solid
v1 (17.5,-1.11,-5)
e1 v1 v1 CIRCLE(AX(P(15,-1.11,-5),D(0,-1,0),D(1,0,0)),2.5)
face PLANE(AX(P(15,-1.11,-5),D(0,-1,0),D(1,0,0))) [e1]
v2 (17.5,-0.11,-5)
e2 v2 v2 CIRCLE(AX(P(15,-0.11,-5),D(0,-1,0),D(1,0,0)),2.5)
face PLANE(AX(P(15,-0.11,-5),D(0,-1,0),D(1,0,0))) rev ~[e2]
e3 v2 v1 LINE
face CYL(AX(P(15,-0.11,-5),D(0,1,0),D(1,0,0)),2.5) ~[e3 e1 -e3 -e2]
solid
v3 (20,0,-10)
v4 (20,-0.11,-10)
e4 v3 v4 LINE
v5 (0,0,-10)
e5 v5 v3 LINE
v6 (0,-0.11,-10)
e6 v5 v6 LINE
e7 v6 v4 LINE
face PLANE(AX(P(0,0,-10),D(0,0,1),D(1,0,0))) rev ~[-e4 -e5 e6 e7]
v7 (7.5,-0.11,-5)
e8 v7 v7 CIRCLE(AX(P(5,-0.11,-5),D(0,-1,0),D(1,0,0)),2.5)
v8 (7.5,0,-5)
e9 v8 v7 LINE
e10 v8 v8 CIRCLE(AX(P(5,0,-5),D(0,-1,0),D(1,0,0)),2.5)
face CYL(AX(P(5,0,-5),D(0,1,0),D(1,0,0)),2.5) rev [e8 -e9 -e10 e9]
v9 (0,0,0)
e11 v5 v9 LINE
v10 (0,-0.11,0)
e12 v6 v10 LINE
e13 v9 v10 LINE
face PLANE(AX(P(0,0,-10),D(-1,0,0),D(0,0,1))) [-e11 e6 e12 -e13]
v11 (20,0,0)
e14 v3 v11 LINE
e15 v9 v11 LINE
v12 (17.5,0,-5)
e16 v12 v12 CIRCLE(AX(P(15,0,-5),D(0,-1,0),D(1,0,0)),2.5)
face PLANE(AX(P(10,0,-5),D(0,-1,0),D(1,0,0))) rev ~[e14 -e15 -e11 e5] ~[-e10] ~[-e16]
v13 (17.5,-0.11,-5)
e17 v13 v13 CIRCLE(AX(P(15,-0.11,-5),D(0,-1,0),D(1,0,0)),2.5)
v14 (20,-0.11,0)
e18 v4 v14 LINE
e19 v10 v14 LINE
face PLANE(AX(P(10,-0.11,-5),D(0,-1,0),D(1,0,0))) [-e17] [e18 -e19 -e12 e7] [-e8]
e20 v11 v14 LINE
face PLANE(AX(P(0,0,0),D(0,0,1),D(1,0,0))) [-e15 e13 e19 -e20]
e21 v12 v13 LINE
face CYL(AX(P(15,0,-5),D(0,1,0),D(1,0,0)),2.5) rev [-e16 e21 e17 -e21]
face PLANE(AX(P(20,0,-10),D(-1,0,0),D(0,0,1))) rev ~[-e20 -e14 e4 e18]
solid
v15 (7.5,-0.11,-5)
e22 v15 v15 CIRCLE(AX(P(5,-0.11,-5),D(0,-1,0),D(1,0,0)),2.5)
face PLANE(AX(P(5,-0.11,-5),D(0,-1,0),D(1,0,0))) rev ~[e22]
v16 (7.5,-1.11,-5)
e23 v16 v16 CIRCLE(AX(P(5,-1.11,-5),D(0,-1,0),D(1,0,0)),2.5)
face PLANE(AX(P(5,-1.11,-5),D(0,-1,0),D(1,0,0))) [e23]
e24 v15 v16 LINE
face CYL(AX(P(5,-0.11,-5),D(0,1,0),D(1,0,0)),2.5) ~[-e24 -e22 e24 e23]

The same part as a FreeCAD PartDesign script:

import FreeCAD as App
import Part
import Sketcher
Q = App.Units.Quantity

doc = App.newDocument("Part")
body = doc.addObject("PartDesign::Body", "Body")

sketch1 = body.newObject("Sketcher::SketchObject", "Sketch")
sketch1.AttachmentSupport = (doc.getObject("XZ_Plane"), [""])
sketch1.MapMode = "FlatFace"
sketch1.addGeometry([
    Part.LineSegment(App.Vector(0, 0, 0), App.Vector(0, -10, 0)),
    Part.LineSegment(App.Vector(0, -10, 0), App.Vector(20, -10, 0)),
    Part.LineSegment(App.Vector(20, -10, 0), App.Vector(20, 0, 0)),
    Part.LineSegment(App.Vector(20, 0, 0), App.Vector(0, 0, 0)),
    Part.Circle(App.Vector(5, -5, 0), App.Vector(0, 0, 1), 2.5),
    Part.Circle(App.Vector(15, -5, 0), App.Vector(0, 0, 1), 2.5),
], False)
sketch1.addConstraint([
    Sketcher.Constraint("Coincident", 0, 2, 1, 1),
    Sketcher.Constraint("Coincident", 1, 2, 2, 1),
    Sketcher.Constraint("Coincident", 2, 2, 3, 1),
    Sketcher.Constraint("Coincident", 3, 2, 0, 1),
    Sketcher.Constraint("Vertical", 0),
    Sketcher.Constraint("Horizontal", 1),
    Sketcher.Constraint("Vertical", 2),
    Sketcher.Constraint("Horizontal", 3),
    Sketcher.Constraint("Coincident", 3, 2, -1, 1),
    Sketcher.Constraint("Equal", 4, 5),
    Sketcher.Constraint("Horizontal", 4, 3, 5, 3),
    Sketcher.Constraint("Diameter", 4, Q("5 mm")),
    Sketcher.Constraint("DistanceX", 1, 1, 1, 2, Q("20 mm")),
    Sketcher.Constraint("DistanceY", 0, 2, 0, 1, Q("10 mm")),
    Sketcher.Constraint("DistanceX", -1, 1, 4, 3, Q("5 mm")),
    Sketcher.Constraint("DistanceY", 4, 3, -1, 1, Q("5 mm")),
    Sketcher.Constraint("DistanceX", -1, 1, 5, 3, Q("15 mm")),
])
pad1 = body.newObject("PartDesign::Pad", "Pad")
pad1.Profile = sketch1
pad1.Length = 0.11
body2 = doc.addObject("PartDesign::Body", "Body001")
body2.AllowCompound = True

sketch2 = body2.newObject("Sketcher::SketchObject", "Sketch001")
sketch2.AttachmentSupport = (doc.getObject("XZ_Plane001"), [""])
sketch2.MapMode = "FlatFace"
sketch2.AttachmentOffset = App.Placement(App.Vector(0, 0, 0.11), App.Rotation())
sketch2.addGeometry([
    Part.Circle(App.Vector(5, -5, 0), App.Vector(0, 0, 1), 2.5),
    Part.Circle(App.Vector(15, -5, 0), App.Vector(0, 0, 1), 2.5),
], False)
sketch2.addConstraint([
    Sketcher.Constraint("Equal", 0, 1),
    Sketcher.Constraint("Horizontal", 0, 3, 1, 3),
    Sketcher.Constraint("Diameter", 0, Q("5 mm")),
    Sketcher.Constraint("DistanceX", -1, 1, 0, 3, Q("5 mm")),
    Sketcher.Constraint("DistanceY", 0, 3, -1, 1, Q("5 mm")),
    Sketcher.Constraint("DistanceX", -1, 1, 1, 3, Q("15 mm")),
])
pad2 = body2.newObject("PartDesign::Pad", "Pad001")
pad2.Profile = sketch2
pad2.Length = 1

doc.recompute()
